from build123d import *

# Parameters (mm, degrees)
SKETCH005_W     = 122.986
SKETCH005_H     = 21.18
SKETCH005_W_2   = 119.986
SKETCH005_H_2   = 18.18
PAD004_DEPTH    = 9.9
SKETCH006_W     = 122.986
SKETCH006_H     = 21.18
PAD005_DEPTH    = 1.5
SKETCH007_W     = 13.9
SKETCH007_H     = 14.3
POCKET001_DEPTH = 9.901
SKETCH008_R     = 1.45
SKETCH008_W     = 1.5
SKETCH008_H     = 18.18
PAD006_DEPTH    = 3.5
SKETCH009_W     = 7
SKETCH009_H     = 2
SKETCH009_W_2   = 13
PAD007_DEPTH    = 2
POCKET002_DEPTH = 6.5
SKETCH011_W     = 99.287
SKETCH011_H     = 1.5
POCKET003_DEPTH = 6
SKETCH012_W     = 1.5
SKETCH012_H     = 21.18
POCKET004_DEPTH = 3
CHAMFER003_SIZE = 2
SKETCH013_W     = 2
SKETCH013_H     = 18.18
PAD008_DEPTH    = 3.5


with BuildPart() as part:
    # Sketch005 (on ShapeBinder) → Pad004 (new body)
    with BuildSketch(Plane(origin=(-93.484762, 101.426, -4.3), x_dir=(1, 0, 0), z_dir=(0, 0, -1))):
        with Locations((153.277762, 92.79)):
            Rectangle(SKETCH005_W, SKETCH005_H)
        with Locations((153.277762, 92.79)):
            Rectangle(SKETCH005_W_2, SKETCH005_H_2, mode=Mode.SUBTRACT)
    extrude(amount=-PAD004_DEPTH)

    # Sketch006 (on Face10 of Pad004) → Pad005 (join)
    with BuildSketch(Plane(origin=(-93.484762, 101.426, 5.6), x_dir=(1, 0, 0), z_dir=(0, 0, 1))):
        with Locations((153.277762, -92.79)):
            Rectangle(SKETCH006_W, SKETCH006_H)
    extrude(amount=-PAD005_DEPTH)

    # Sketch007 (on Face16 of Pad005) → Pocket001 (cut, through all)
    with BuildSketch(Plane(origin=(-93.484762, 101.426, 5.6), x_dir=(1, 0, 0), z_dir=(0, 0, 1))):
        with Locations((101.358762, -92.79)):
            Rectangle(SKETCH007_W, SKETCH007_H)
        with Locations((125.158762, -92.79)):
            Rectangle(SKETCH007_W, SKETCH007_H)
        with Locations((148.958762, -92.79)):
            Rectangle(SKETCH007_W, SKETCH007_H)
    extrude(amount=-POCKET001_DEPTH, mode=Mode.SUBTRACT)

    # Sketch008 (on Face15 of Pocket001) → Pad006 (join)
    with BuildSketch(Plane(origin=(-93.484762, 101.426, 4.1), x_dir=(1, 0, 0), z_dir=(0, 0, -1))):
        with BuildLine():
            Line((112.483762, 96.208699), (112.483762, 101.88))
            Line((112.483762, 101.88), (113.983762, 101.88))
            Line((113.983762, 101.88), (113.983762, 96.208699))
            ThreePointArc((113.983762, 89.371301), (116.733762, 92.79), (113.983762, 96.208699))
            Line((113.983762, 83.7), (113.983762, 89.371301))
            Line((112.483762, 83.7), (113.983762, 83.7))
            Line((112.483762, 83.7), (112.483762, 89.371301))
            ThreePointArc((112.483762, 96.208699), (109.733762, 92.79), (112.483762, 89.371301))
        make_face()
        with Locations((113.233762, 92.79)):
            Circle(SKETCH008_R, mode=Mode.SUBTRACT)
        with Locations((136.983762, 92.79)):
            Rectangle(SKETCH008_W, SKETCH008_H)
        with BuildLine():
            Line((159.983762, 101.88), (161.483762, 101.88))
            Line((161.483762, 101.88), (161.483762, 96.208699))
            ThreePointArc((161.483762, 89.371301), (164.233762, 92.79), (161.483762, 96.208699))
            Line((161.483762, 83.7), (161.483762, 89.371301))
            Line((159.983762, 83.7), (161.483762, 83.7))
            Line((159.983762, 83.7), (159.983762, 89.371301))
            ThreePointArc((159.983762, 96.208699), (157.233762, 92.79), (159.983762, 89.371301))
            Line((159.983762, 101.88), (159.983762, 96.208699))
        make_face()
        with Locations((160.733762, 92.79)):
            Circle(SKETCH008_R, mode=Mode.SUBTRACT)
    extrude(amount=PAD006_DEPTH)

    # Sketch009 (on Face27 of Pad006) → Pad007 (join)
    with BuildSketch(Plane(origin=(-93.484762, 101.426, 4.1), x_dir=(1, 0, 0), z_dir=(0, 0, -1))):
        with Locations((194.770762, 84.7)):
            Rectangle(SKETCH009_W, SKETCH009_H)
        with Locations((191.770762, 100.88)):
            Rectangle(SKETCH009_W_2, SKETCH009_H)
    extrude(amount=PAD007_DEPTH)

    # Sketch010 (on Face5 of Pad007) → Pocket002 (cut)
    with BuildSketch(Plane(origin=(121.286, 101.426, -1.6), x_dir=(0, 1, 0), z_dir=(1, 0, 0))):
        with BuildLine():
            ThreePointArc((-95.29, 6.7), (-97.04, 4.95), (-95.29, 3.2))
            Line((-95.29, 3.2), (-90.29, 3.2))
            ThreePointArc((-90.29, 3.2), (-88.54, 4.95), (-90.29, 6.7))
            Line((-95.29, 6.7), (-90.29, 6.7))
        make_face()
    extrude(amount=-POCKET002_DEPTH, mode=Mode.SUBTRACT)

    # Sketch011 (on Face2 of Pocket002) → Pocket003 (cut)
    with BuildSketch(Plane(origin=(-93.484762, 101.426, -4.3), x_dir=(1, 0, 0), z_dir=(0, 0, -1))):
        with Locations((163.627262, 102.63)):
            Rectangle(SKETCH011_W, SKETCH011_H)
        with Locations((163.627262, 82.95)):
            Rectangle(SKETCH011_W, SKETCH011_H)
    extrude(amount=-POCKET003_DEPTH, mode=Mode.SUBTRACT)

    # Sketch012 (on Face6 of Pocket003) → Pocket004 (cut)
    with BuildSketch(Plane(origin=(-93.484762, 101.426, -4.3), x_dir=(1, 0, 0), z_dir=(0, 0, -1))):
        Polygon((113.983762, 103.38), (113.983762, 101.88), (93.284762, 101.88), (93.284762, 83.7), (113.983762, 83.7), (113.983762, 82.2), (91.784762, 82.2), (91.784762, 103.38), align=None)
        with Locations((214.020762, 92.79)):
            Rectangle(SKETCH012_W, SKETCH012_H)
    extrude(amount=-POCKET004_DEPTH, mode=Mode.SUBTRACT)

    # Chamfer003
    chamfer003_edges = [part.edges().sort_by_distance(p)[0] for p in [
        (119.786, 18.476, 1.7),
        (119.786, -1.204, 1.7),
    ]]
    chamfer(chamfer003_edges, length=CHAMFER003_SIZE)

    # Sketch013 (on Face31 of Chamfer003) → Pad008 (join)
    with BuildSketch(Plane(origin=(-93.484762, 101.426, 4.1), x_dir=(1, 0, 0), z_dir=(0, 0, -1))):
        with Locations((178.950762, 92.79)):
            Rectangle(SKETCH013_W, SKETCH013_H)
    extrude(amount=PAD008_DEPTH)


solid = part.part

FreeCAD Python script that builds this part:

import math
import FreeCAD as App
import Part
import Sketcher


def edges_at(feature, points):
    """Names of the edges that pass closest to the given points."""
    edges = feature.Shape.Edges
    near = lambda p: min(range(len(edges)), key=lambda i: edges[i].distToShape(Part.Vertex(*p))[0])
    return sorted({f"Edge{near(p) + 1}" for p in points})

doc = App.newDocument("Part")
body = doc.addObject("PartDesign::Body", "Body")

# Sketch on XY plane
sketch1 = body.newObject("Sketcher::SketchObject", "Sketch")
sketch1.AttachmentSupport = (doc.getObject("XY_Plane"), [""])
sketch1.MapMode = "FlatFace"
sketch1.AttachmentOffset = App.Placement(App.Vector(0, 0, -4.3), App.Rotation())
sketch1.addGeometry(Part.LineSegment(App.Vector(-1.7, -1.954, 0), App.Vector(-1.7, 19.226, 0)), False)
sketch1.addGeometry(Part.LineSegment(App.Vector(-1.7, 19.226, 0), App.Vector(121.286, 19.226, 0)), False)
sketch1.addGeometry(Part.LineSegment(App.Vector(121.286, 19.226, 0), App.Vector(121.286, -1.954, 0)), False)
sketch1.addGeometry(Part.LineSegment(App.Vector(121.286, -1.954, 0), App.Vector(-1.7, -1.954, 0)), False)
sketch1.addGeometry(Part.LineSegment(App.Vector(119.786, 17.726, 0), App.Vector(-0.2, 17.726, 0)), False)
sketch1.addGeometry(Part.LineSegment(App.Vector(-0.2, 17.726, 0), App.Vector(-0.2, -0.454, 0)), False)
sketch1.addGeometry(Part.LineSegment(App.Vector(-0.2, -0.454, 0), App.Vector(119.786, -0.454, 0)), False)
sketch1.addGeometry(Part.LineSegment(App.Vector(119.786, -0.454, 0), App.Vector(119.786, 17.726, 0)), False)
sketch1.addConstraint(Sketcher.Constraint("Coincident", 0, 2, 1, 1))
sketch1.addConstraint(Sketcher.Constraint("Coincident", 1, 2, 2, 1))
sketch1.addConstraint(Sketcher.Constraint("Coincident", 2, 2, 3, 1))
sketch1.addConstraint(Sketcher.Constraint("Coincident", 3, 2, 0, 1))
sketch1.addConstraint(Sketcher.Constraint("Coincident", 4, 2, 5, 1))
sketch1.addConstraint(Sketcher.Constraint("Coincident", 5, 2, 6, 1))
sketch1.addConstraint(Sketcher.Constraint("Coincident", 6, 2, 7, 1))
sketch1.addConstraint(Sketcher.Constraint("Coincident", 7, 2, 4, 1))
sketch1.addConstraint(Sketcher.Constraint("Vertical", 0))
sketch1.addConstraint(Sketcher.Constraint("Horizontal", 1))
sketch1.addConstraint(Sketcher.Constraint("Vertical", 2))
sketch1.addConstraint(Sketcher.Constraint("Horizontal", 3))
sketch1.addConstraint(Sketcher.Constraint("Horizontal", 4))
sketch1.addConstraint(Sketcher.Constraint("Vertical", 5))
sketch1.addConstraint(Sketcher.Constraint("Horizontal", 6))
sketch1.addConstraint(Sketcher.Constraint("Vertical", 7))
sketch1.addConstraint(Sketcher.Constraint("DistanceY", 0, 1, 0, 2, 21.18))
sketch1.addConstraint(Sketcher.Constraint("DistanceY", 5, 2, 5, 1, 18.18))
sketch1.addConstraint(Sketcher.Constraint("DistanceX", 0, 2, -1, 1, 1.7))
sketch1.addConstraint(Sketcher.Constraint("DistanceX", 4, 2, -1, 1, 0.2))
sketch1.addConstraint(Sketcher.Constraint("DistanceY", 4, 2, 0, 2, 1.5))
sketch1.addConstraint(Sketcher.Constraint("DistanceX", 6, 2, 2, 2, 1.5))
sketch1.addConstraint(Sketcher.Constraint("DistanceX", 1, 1, 1, 2, 122.986))
sketch1.addConstraint(Sketcher.Constraint("DistanceY", -1, 1, 0, 2, 19.226))
pad1 = body.newObject("PartDesign::Pad", "Pad")
pad1.Profile = sketch1
pad1.Length = 9.9

# Sketch on XY plane
sketch2 = body.newObject("Sketcher::SketchObject", "Sketch001")
sketch2.AttachmentSupport = (doc.getObject("XY_Plane"), [""])
sketch2.MapMode = "FlatFace"
sketch2.AttachmentOffset = App.Placement(App.Vector(0, 0, 5.6), App.Rotation())
sketch2.addGeometry(Part.LineSegment(App.Vector(-1.7, 19.226, 0), App.Vector(-1.7, -1.954, 0)), False)
sketch2.addGeometry(Part.LineSegment(App.Vector(-1.7, -1.954, 0), App.Vector(121.286, -1.954, 0)), False)
sketch2.addGeometry(Part.LineSegment(App.Vector(121.286, -1.954, 0), App.Vector(121.286, 19.226, 0)), False)
sketch2.addGeometry(Part.LineSegment(App.Vector(121.286, 19.226, 0), App.Vector(-1.7, 19.226, 0)), False)
sketch2.addConstraint(Sketcher.Constraint("Coincident", 0, 2, 1, 1))
sketch2.addConstraint(Sketcher.Constraint("Coincident", 1, 2, 2, 1))
sketch2.addConstraint(Sketcher.Constraint("Coincident", 2, 2, 3, 1))
sketch2.addConstraint(Sketcher.Constraint("Coincident", 3, 2, 0, 1))
sketch2.addConstraint(Sketcher.Constraint("Vertical", 0))
sketch2.addConstraint(Sketcher.Constraint("Horizontal", 1))
sketch2.addConstraint(Sketcher.Constraint("Vertical", 2))
sketch2.addConstraint(Sketcher.Constraint("Horizontal", 3))
sketch2.addConstraint(Sketcher.Constraint("DistanceY", 0, 2, 0, 1, 21.18))
sketch2.addConstraint(Sketcher.Constraint("DistanceX", 0, 2, -1, 1, 1.7))
sketch2.addConstraint(Sketcher.Constraint("DistanceX", 1, 1, 1, 2, 122.986))
sketch2.addConstraint(Sketcher.Constraint("DistanceY", 0, 2, -1, 1, 1.954))
pad2 = body.newObject("PartDesign::Pad", "Pad001")
pad2.Profile = sketch2
pad2.Length = 1.5
pad2.Reversed = True

# Sketch on XY plane
sketch3 = body.newObject("Sketcher::SketchObject", "Sketch002")
sketch3.AttachmentSupport = (doc.getObject("XY_Plane"), [""])
sketch3.MapMode = "FlatFace"
sketch3.AttachmentOffset = App.Placement(App.Vector(0, 0, 5.6), App.Rotation())
sketch3.addGeometry(Part.LineSegment(App.Vector(0.924, 15.786, 0), App.Vector(0.924, 1.486, 0)), False)
sketch3.addGeometry(Part.LineSegment(App.Vector(0.924, 1.486, 0), App.Vector(14.824, 1.486, 0)), False)
sketch3.addGeometry(Part.LineSegment(App.Vector(14.824, 1.486, 0), App.Vector(14.824, 15.786, 0)), False)
sketch3.addGeometry(Part.LineSegment(App.Vector(14.824, 15.786, 0), App.Vector(0.924, 15.786, 0)), False)
sketch3.addGeometry(Part.LineSegment(App.Vector(24.724, 15.786, 0), App.Vector(24.724, 1.486, 0)), False)
sketch3.addGeometry(Part.LineSegment(App.Vector(24.724, 1.486, 0), App.Vector(38.624, 1.486, 0)), False)
sketch3.addGeometry(Part.LineSegment(App.Vector(38.624, 1.486, 0), App.Vector(38.624, 15.786, 0)), False)
sketch3.addGeometry(Part.LineSegment(App.Vector(38.624, 15.786, 0), App.Vector(24.724, 15.786, 0)), False)
sketch3.addGeometry(Part.LineSegment(App.Vector(48.524, 15.786, 0), App.Vector(48.524, 1.486, 0)), False)
sketch3.addGeometry(Part.LineSegment(App.Vector(48.524, 1.486, 0), App.Vector(62.424, 1.486, 0)), False)
sketch3.addGeometry(Part.LineSegment(App.Vector(62.424, 1.486, 0), App.Vector(62.424, 15.786, 0)), False)
sketch3.addGeometry(Part.LineSegment(App.Vector(62.424, 15.786, 0), App.Vector(48.524, 15.786, 0)), False)
sketch3.addConstraint(Sketcher.Constraint("Coincident", 0, 2, 1, 1))
sketch3.addConstraint(Sketcher.Constraint("Coincident", 1, 2, 2, 1))
sketch3.addConstraint(Sketcher.Constraint("Coincident", 2, 2, 3, 1))
sketch3.addConstraint(Sketcher.Constraint("Coincident", 3, 2, 0, 1))
sketch3.addConstraint(Sketcher.Constraint("Coincident", 4, 2, 5, 1))
sketch3.addConstraint(Sketcher.Constraint("Coincident", 5, 2, 6, 1))
sketch3.addConstraint(Sketcher.Constraint("Coincident", 6, 2, 7, 1))
sketch3.addConstraint(Sketcher.Constraint("Coincident", 7, 2, 4, 1))
sketch3.addConstraint(Sketcher.Constraint("Coincident", 8, 2, 9, 1))
sketch3.addConstraint(Sketcher.Constraint("Coincident", 9, 2, 10, 1))
sketch3.addConstraint(Sketcher.Constraint("Coincident", 10, 2, 11, 1))
sketch3.addConstraint(Sketcher.Constraint("Coincident", 11, 2, 8, 1))
sketch3.addConstraint(Sketcher.Constraint("Vertical", 0))
sketch3.addConstraint(Sketcher.Constraint("Horizontal", 1))
sketch3.addConstraint(Sketcher.Constraint("Vertical", 2))
sketch3.addConstraint(Sketcher.Constraint("Horizontal", 3))
sketch3.addConstraint(Sketcher.Constraint("Vertical", 4))
sketch3.addConstraint(Sketcher.Constraint("Horizontal", 5))
sketch3.addConstraint(Sketcher.Constraint("Vertical", 6))
sketch3.addConstraint(Sketcher.Constraint("Horizontal", 7))
sketch3.addConstraint(Sketcher.Constraint("Vertical", 8))
sketch3.addConstraint(Sketcher.Constraint("Horizontal", 9))
sketch3.addConstraint(Sketcher.Constraint("Vertical", 10))
sketch3.addConstraint(Sketcher.Constraint("Horizontal", 11))
sketch3.addConstraint(Sketcher.Constraint("Horizontal", 1, 2, 4, 2))
sketch3.addConstraint(Sketcher.Constraint("Horizontal", 3, 2, 6, 2))
sketch3.addConstraint(Sketcher.Constraint("Horizontal", 5, 2, 8, 2))
sketch3.addConstraint(Sketcher.Constraint("Horizontal", 7, 2, 10, 2))
sketch3.addConstraint(Sketcher.Constraint("Equal", 3, 5))
sketch3.addConstraint(Sketcher.Constraint("Equal", 7, 9))
sketch3.addConstraint(Sketcher.Constraint("DistanceX", 1, 1, 1, 2, 13.9))
sketch3.addConstraint(Sketcher.Constraint("DistanceY", 0, 2, 0, 1, 14.3))
sketch3.addConstraint(Sketcher.Constraint("DistanceX", 1, 2, 4, 2, 9.9))
sketch3.addConstraint(Sketcher.Constraint("DistanceX", 5, 2, 8, 2, 9.9))
sketch3.addConstraint(Sketcher.Constraint("DistanceX", -1, 1, 0, 2, 0.924))
sketch3.addConstraint(Sketcher.Constraint("DistanceY", -1, 1, 0, 2, 1.486))
pocket1 = body.newObject("PartDesign::Pocket", "Pocket")
pocket1.Profile = sketch3
pocket1.Type = "ThroughAll"

# Sketch on XY plane
sketch4 = body.newObject("Sketcher::SketchObject", "Sketch003")
sketch4.AttachmentSupport = (doc.getObject("XY_Plane"), [""])
sketch4.MapMode = "FlatFace"
sketch4.AttachmentOffset = App.Placement(App.Vector(0, 0, 4.1), App.Rotation())
sketch4.addGeometry(Part.LineSegment(App.Vector(18.999, -0.454, 0), App.Vector(18.999, 5.217301, 0)), False)
sketch4.addGeometry(Part.ArcOfCircle(Part.Circle(App.Vector(19.749001, 8.636, 0), App.Vector(0, 0, 1), 3.500001), math.radians(102.373632), math.radians(257.626368)), False)
sketch4.addGeometry(Part.LineSegment(App.Vector(18.999, 12.054699, 0), App.Vector(18.999, 17.726, 0)), False)
sketch4.addGeometry(Part.LineSegment(App.Vector(18.999, 17.726, 0), App.Vector(20.499, 17.726, 0)), False)
sketch4.addGeometry(Part.LineSegment(App.Vector(20.499, 17.726, 0), App.Vector(20.499, 12.054699, 0)), False)
sketch4.addGeometry(Part.ArcOfCircle(Part.Circle(App.Vector(19.748999, 8.636, 0), App.Vector(0, 0, 1), 3.500001), math.radians(-77.626368), math.radians(77.626368)), False)
sketch4.addGeometry(Part.LineSegment(App.Vector(20.499, 5.217301, 0), App.Vector(20.499, -0.454, 0)), False)
sketch4.addGeometry(Part.LineSegment(App.Vector(20.499, -0.454, 0), App.Vector(18.999, -0.454, 0)), False)
sketch4.addGeometry(Part.Circle(App.Vector(19.749, 8.636, 0), App.Vector(0, 0, 1), 1.45), False)
sketch4.addGeometry(Part.LineSegment(App.Vector(42.749, -0.454, 0), App.Vector(42.749, 17.726, 0)), False)
sketch4.addGeometry(Part.LineSegment(App.Vector(42.749, 17.726, 0), App.Vector(44.249, 17.726, 0)), False)
sketch4.addGeometry(Part.LineSegment(App.Vector(44.249, 17.726, 0), App.Vector(44.249, -0.454, 0)), False)
sketch4.addGeometry(Part.LineSegment(App.Vector(44.249, -0.454, 0), App.Vector(42.749, -0.454, 0)), False)
sketch4.addGeometry(Part.LineSegment(App.Vector(67.999, -0.454, 0), App.Vector(66.499, -0.454, 0)), False)
sketch4.addGeometry(Part.LineSegment(App.Vector(66.499, -0.454, 0), App.Vector(66.499, 5.217301, 0)), False)
sketch4.addGeometry(Part.ArcOfCircle(Part.Circle(App.Vector(67.249001, 8.636, 0), App.Vector(0, 0, 1), 3.500001), math.radians(102.373632), math.radians(257.626368)), False)
sketch4.addGeometry(Part.LineSegment(App.Vector(66.499, 12.054699, 0), App.Vector(66.499, 17.726, 0)), False)
sketch4.addGeometry(Part.LineSegment(App.Vector(66.499, 17.726, 0), App.Vector(67.999, 17.726, 0)), False)
sketch4.addGeometry(Part.LineSegment(App.Vector(67.999, 17.726, 0), App.Vector(67.999, 12.054699, 0)), False)
sketch4.addGeometry(Part.ArcOfCircle(Part.Circle(App.Vector(67.248999, 8.636, 0), App.Vector(0, 0, 1), 3.500001), math.radians(-77.626368), math.radians(77.626368)), False)
sketch4.addGeometry(Part.LineSegment(App.Vector(67.999, 5.217301, 0), App.Vector(67.999, -0.454, 0)), False)
sketch4.addGeometry(Part.Circle(App.Vector(67.249, 8.636, 0), App.Vector(0, 0, 1), 1.45), False)
sketch4.addConstraint(Sketcher.Constraint("Coincident", 0, 2, 1, 2))
sketch4.addConstraint(Sketcher.Constraint("Coincident", 1, 1, 2, 1))
sketch4.addConstraint(Sketcher.Constraint("Coincident", 2, 2, 3, 1))
sketch4.addConstraint(Sketcher.Constraint("Coincident", 3, 2, 4, 1))
sketch4.addConstraint(Sketcher.Constraint("Coincident", 4, 2, 5, 2))
sketch4.addConstraint(Sketcher.Constraint("Coincident", 5, 1, 6, 1))
sketch4.addConstraint(Sketcher.Constraint("Coincident", 6, 2, 7, 1))
sketch4.addConstraint(Sketcher.Constraint("Coincident", 7, 2, 0, 1))
sketch4.addConstraint(Sketcher.Constraint("Coincident", 9, 2, 10, 1))
sketch4.addConstraint(Sketcher.Constraint("Coincident", 10, 2, 11, 1))
sketch4.addConstraint(Sketcher.Constraint("Coincident", 11, 2, 12, 1))
sketch4.addConstraint(Sketcher.Constraint("Coincident", 12, 2, 9, 1))
sketch4.addConstraint(Sketcher.Constraint("Coincident", 13, 2, 14, 1))
sketch4.addConstraint(Sketcher.Constraint("Coincident", 14, 2, 15, 2))
sketch4.addConstraint(Sketcher.Constraint("Coincident", 15, 1, 16, 1))
sketch4.addConstraint(Sketcher.Constraint("Coincident", 16, 2, 17, 1))
sketch4.addConstraint(Sketcher.Constraint("Coincident", 17, 2, 18, 1))
sketch4.addConstraint(Sketcher.Constraint("Coincident", 18, 2, 19, 2))
sketch4.addConstraint(Sketcher.Constraint("Coincident", 19, 1, 20, 1))
sketch4.addConstraint(Sketcher.Constraint("Coincident", 20, 2, 13, 1))
sketch4.addConstraint(Sketcher.Constraint("Vertical", 0))
sketch4.addConstraint(Sketcher.Constraint("Vertical", 2))
sketch4.addConstraint(Sketcher.Constraint("Horizontal", 3))
sketch4.addConstraint(Sketcher.Constraint("Vertical", 4))
sketch4.addConstraint(Sketcher.Constraint("Vertical", 6))
sketch4.addConstraint(Sketcher.Constraint("Horizontal", 7))
sketch4.addConstraint(Sketcher.Constraint("Vertical", 9))
sketch4.addConstraint(Sketcher.Constraint("Horizontal", 10))
sketch4.addConstraint(Sketcher.Constraint("Vertical", 11))
sketch4.addConstraint(Sketcher.Constraint("Horizontal", 12))
sketch4.addConstraint(Sketcher.Constraint("Horizontal", 13))
sketch4.addConstraint(Sketcher.Constraint("Vertical", 14))
sketch4.addConstraint(Sketcher.Constraint("Vertical", 16))
sketch4.addConstraint(Sketcher.Constraint("Horizontal", 17))
sketch4.addConstraint(Sketcher.Constraint("Vertical", 18))
sketch4.addConstraint(Sketcher.Constraint("Vertical", 20))
sketch4.addConstraint(Sketcher.Constraint("Coincident", 5, 3, 1, 3))
sketch4.addConstraint(Sketcher.Constraint("Coincident", 8, 3, 1, 3))
sketch4.addConstraint(Sketcher.Constraint("Coincident", 19, 3, 15, 3))
sketch4.addConstraint(Sketcher.Constraint("Coincident", 21, 3, 15, 3))
sketch4.addConstraint(Sketcher.Constraint("Equal", 1, 5))
sketch4.addConstraint(Sketcher.Constraint("Equal", 5, 15))
sketch4.addConstraint(Sketcher.Constraint("Equal", 15, 19))
sketch4.addConstraint(Sketcher.Constraint("Equal", 8, 21))
sketch4.addConstraint(Sketcher.Constraint("Horizontal", 8, 3, 15, 3))
sketch4.addConstraint(Sketcher.Constraint("Horizontal", 1, 1, 4, 2))
sketch4.addConstraint(Sketcher.Constraint("Horizontal", 0, 2, 5, 1))
sketch4.addConstraint(Sketcher.Constraint("Horizontal", 3, 2, 9, 2))
sketch4.addConstraint(Sketcher.Constraint("Horizontal", 7, 2, 11, 2))
sketch4.addConstraint(Sketcher.Constraint("Horizontal", 12, 2, 13, 2))
sketch4.addConstraint(Sketcher.Constraint("Horizontal", 5, 1, 14, 2))
sketch4.addConstraint(Sketcher.Constraint("Horizontal", 4, 2, 15, 1))
sketch4.addConstraint(Sketcher.Constraint("Horizontal", 10, 2, 16, 2))
sketch4.addConstraint(Sketcher.Constraint("Horizontal", 15, 1, 18, 2))
sketch4.addConstraint(Sketcher.Constraint("Horizontal", 14, 2, 19, 1))
sketch4.addConstraint(Sketcher.Constraint("Vertical", 0, 2, 1, 1))
sketch4.addConstraint(Sketcher.Constraint("Equal", 7, 10))
sketch4.addConstraint(Sketcher.Constraint("Equal", 0, 2))
sketch4.addConstraint(Sketcher.Constraint("Diameter", 8, 2.9))
sketch4.addConstraint(Sketcher.Constraint("Radius", 1, 3.500001))
sketch4.addConstraint(Sketcher.Constraint("DistanceX", 3, 1, 3, 2, 1.5))
sketch4.addConstraint(Sketcher.Constraint("DistanceX", 1, 3, 9, 2, 22.999999))
sketch4.addConstraint(Sketcher.Constraint("DistanceX", 10, 2, 19, 3, 22.999999))
sketch4.addConstraint(Sketcher.Constraint("DistanceY", 9, 1, 9, 2, 18.18))
sketch4.addConstraint(Sketcher.Constraint("DistanceX", -1, 1, 1, 3, 19.749001))
sketch4.addConstraint(Sketcher.Constraint("DistanceY", -1, 1, 1, 3, 8.636))
pad3 = body.newObject("PartDesign::Pad", "Pad002")
pad3.Profile = sketch4
pad3.Length = 3.5
pad3.Reversed = True

# Sketch on XY plane
sketch5 = body.newObject("Sketcher::SketchObject", "Sketch004")
sketch5.AttachmentSupport = (doc.getObject("XY_Plane"), [""])
sketch5.MapMode = "FlatFace"
sketch5.AttachmentOffset = App.Placement(App.Vector(0, 0, 4.1), App.Rotation())
sketch5.addGeometry(Part.LineSegment(App.Vector(97.786, 15.726, 0), App.Vector(97.786, 17.726, 0)), False)
sketch5.addGeometry(Part.LineSegment(App.Vector(97.786, 17.726, 0), App.Vector(104.786, 17.726, 0)), False)
sketch5.addGeometry(Part.LineSegment(App.Vector(104.786, 17.726, 0), App.Vector(104.786, 15.726, 0)), False)
sketch5.addGeometry(Part.LineSegment(App.Vector(104.786, 15.726, 0), App.Vector(97.786, 15.726, 0)), False)
sketch5.addGeometry(Part.LineSegment(App.Vector(91.786, -0.454, 0), App.Vector(91.786, 1.546, 0)), False)
sketch5.addGeometry(Part.LineSegment(App.Vector(91.786, 1.546, 0), App.Vector(104.786, 1.546, 0)), False)
sketch5.addGeometry(Part.LineSegment(App.Vector(104.786, 1.546, 0), App.Vector(104.786, -0.454, 0)), False)
sketch5.addGeometry(Part.LineSegment(App.Vector(104.786, -0.454, 0), App.Vector(91.786, -0.454, 0)), False)
sketch5.addConstraint(Sketcher.Constraint("Coincident", 0, 2, 1, 1))
sketch5.addConstraint(Sketcher.Constraint("Coincident", 1, 2, 2, 1))
sketch5.addConstraint(Sketcher.Constraint("Coincident", 2, 2, 3, 1))
sketch5.addConstraint(Sketcher.Constraint("Coincident", 3, 2, 0, 1))
sketch5.addConstraint(Sketcher.Constraint("Coincident", 4, 2, 5, 1))
sketch5.addConstraint(Sketcher.Constraint("Coincident", 5, 2, 6, 1))
sketch5.addConstraint(Sketcher.Constraint("Coincident", 6, 2, 7, 1))
sketch5.addConstraint(Sketcher.Constraint("Coincident", 7, 2, 4, 1))
sketch5.addConstraint(Sketcher.Constraint("Vertical", 0))
sketch5.addConstraint(Sketcher.Constraint("Horizontal", 1))
sketch5.addConstraint(Sketcher.Constraint("Vertical", 2))
sketch5.addConstraint(Sketcher.Constraint("Horizontal", 3))
sketch5.addConstraint(Sketcher.Constraint("Vertical", 4))
sketch5.addConstraint(Sketcher.Constraint("Horizontal", 5))
sketch5.addConstraint(Sketcher.Constraint("Vertical", 6))
sketch5.addConstraint(Sketcher.Constraint("Horizontal", 7))
sketch5.addConstraint(Sketcher.Constraint("Vertical", 2, 2, 5, 2))
sketch5.addConstraint(Sketcher.Constraint("Equal", 2, 4))
sketch5.addConstraint(Sketcher.Constraint("DistanceX", 1, 1, 1, 2, 7.0))
sketch5.addConstraint(Sketcher.Constraint("DistanceX", 5, 1, 5, 2, 13.0))
sketch5.addConstraint(Sketcher.Constraint("DistanceY", 0, 1, 0, 2, 2.0))
sketch5.addConstraint(Sketcher.Constraint("DistanceY", 4, 2, 3, 2, 14.18))
sketch5.addConstraint(Sketcher.Constraint("DistanceX", -1, 1, 0, 2, 97.786))
sketch5.addConstraint(Sketcher.Constraint("DistanceY", -1, 1, 0, 2, 17.726))
pad4 = body.newObject("PartDesign::Pad", "Pad003")
pad4.Profile = sketch5
pad4.Length = 2
pad4.Reversed = True

# Sketch on YZ plane
sketch6 = body.newObject("Sketcher::SketchObject", "Sketch005")
sketch6.AttachmentSupport = (doc.getObject("YZ_Plane"), [""])
sketch6.MapMode = "FlatFace"
sketch6.AttachmentOffset = App.Placement(App.Vector(0, 0, 121.286), App.Rotation())
sketch6.addGeometry(Part.ArcOfCircle(Part.Circle(App.Vector(6.136, 3.35, 0), App.Vector(0, 0, 1), 1.75), math.radians(90), math.radians(270)), False)
sketch6.addGeometry(Part.LineSegment(App.Vector(6.136, 1.6, 0), App.Vector(11.136, 1.6, 0)), False)
sketch6.addGeometry(Part.ArcOfCircle(Part.Circle(App.Vector(11.136, 3.35, 0), App.Vector(0, 0, 1), 1.75), math.radians(-90), math.radians(90)), False)
sketch6.addGeometry(Part.LineSegment(App.Vector(11.136, 5.1, 0), App.Vector(6.136, 5.1, 0)), False)
sketch6.addConstraint(Sketcher.Constraint("Tangent", 0, 2, 1, 1))
sketch6.addConstraint(Sketcher.Constraint("Tangent", 1, 2, 2, 1))
sketch6.addConstraint(Sketcher.Constraint("Tangent", 2, 2, 3, 1))
sketch6.addConstraint(Sketcher.Constraint("Tangent", 3, 2, 0, 1))
sketch6.addConstraint(Sketcher.Constraint("Horizontal", 1))
sketch6.addConstraint(Sketcher.Constraint("Horizontal", 3))
sketch6.addConstraint(Sketcher.Constraint("DistanceX", 1, 1, 1, 2, 5.0))
sketch6.addConstraint(Sketcher.Constraint("Radius", 0, 1.75))
sketch6.addConstraint(Sketcher.Constraint("DistanceY", -1, 1, 0, 2, 1.6))
sketch6.addConstraint(Sketcher.Constraint("DistanceX", -1, 1, 0, 3, 6.136))
pocket2 = body.newObject("PartDesign::Pocket", "Pocket001")
pocket2.Profile = sketch6
pocket2.Length = 6.5

# Sketch on XY plane
sketch7 = body.newObject("Sketcher::SketchObject", "Sketch006")
sketch7.AttachmentSupport = (doc.getObject("XY_Plane"), [""])
sketch7.MapMode = "FlatFace"
sketch7.AttachmentOffset = App.Placement(App.Vector(0, 0, -4.3), App.Rotation())
sketch7.addGeometry(Part.LineSegment(App.Vector(20.499, -1.954, 0), App.Vector(20.499, -0.454, 0)), False)
sketch7.addGeometry(Part.LineSegment(App.Vector(20.499, -0.454, 0), App.Vector(119.786, -0.454, 0)), False)
sketch7.addGeometry(Part.LineSegment(App.Vector(119.786, -0.454, 0), App.Vector(119.786, -1.954, 0)), False)
sketch7.addGeometry(Part.LineSegment(App.Vector(119.786, -1.954, 0), App.Vector(20.499, -1.954, 0)), False)
sketch7.addGeometry(Part.LineSegment(App.Vector(20.499, 17.726, 0), App.Vector(20.499, 19.226, 0)), False)
sketch7.addGeometry(Part.LineSegment(App.Vector(20.499, 19.226, 0), App.Vector(119.786, 19.226, 0)), False)
sketch7.addGeometry(Part.LineSegment(App.Vector(119.786, 19.226, 0), App.Vector(119.786, 17.726, 0)), False)
sketch7.addGeometry(Part.LineSegment(App.Vector(119.786, 17.726, 0), App.Vector(20.499, 17.726, 0)), False)
sketch7.addConstraint(Sketcher.Constraint("Coincident", 0, 2, 1, 1))
sketch7.addConstraint(Sketcher.Constraint("Coincident", 1, 2, 2, 1))
sketch7.addConstraint(Sketcher.Constraint("Coincident", 2, 2, 3, 1))
sketch7.addConstraint(Sketcher.Constraint("Coincident", 3, 2, 0, 1))
sketch7.addConstraint(Sketcher.Constraint("Coincident", 4, 2, 5, 1))
sketch7.addConstraint(Sketcher.Constraint("Coincident", 5, 2, 6, 1))
sketch7.addConstraint(Sketcher.Constraint("Coincident", 6, 2, 7, 1))
sketch7.addConstraint(Sketcher.Constraint("Coincident", 7, 2, 4, 1))
sketch7.addConstraint(Sketcher.Constraint("Vertical", 0))
sketch7.addConstraint(Sketcher.Constraint("Horizontal", 1))
sketch7.addConstraint(Sketcher.Constraint("Vertical", 2))
sketch7.addConstraint(Sketcher.Constraint("Horizontal", 3))
sketch7.addConstraint(Sketcher.Constraint("Vertical", 4))
sketch7.addConstraint(Sketcher.Constraint("Horizontal", 5))
sketch7.addConstraint(Sketcher.Constraint("Vertical", 6))
sketch7.addConstraint(Sketcher.Constraint("Horizontal", 7))
sketch7.addConstraint(Sketcher.Constraint("Vertical", 3, 2, 4, 2))
sketch7.addConstraint(Sketcher.Constraint("Vertical", 2, 2, 5, 2))
sketch7.addConstraint(Sketcher.Constraint("Equal", 2, 4))
sketch7.addConstraint(Sketcher.Constraint("DistanceY", 0, 1, 0, 2, 1.5))
sketch7.addConstraint(Sketcher.Constraint("DistanceX", 1, 1, 1, 2, 99.287))
sketch7.addConstraint(Sketcher.Constraint("DistanceY", 0, 2, 4, 2, 19.68))
sketch7.addConstraint(Sketcher.Constraint("DistanceX", -1, 1, 0, 2, 20.499))
sketch7.addConstraint(Sketcher.Constraint("DistanceY", 0, 2, -1, 1, 0.454))
pocket3 = body.newObject("PartDesign::Pocket", "Pocket002")
pocket3.Profile = sketch7
pocket3.Length = 6
pocket3.Reversed = True

# Sketch on XY plane
sketch8 = body.newObject("Sketcher::SketchObject", "Sketch007")
sketch8.AttachmentSupport = (doc.getObject("XY_Plane"), [""])
sketch8.MapMode = "FlatFace"
sketch8.AttachmentOffset = App.Placement(App.Vector(0, 0, -4.3), App.Rotation())
sketch8.addGeometry(Part.LineSegment(App.Vector(20.499, -0.454, 0), App.Vector(20.499, -1.954, 0)), False)
sketch8.addGeometry(Part.LineSegment(App.Vector(20.499, -1.954, 0), App.Vector(-1.7, -1.954, 0)), False)
sketch8.addGeometry(Part.LineSegment(App.Vector(-1.7, -1.954, 0), App.Vector(-1.7, 19.226, 0)), False)
sketch8.addGeometry(Part.LineSegment(App.Vector(-1.7, 19.226, 0), App.Vector(20.499, 19.226, 0)), False)
sketch8.addGeometry(Part.LineSegment(App.Vector(20.499, 19.226, 0), App.Vector(20.499, 17.726, 0)), False)
sketch8.addGeometry(Part.LineSegment(App.Vector(20.499, 17.726, 0), App.Vector(-0.2, 17.726, 0)), False)
sketch8.addGeometry(Part.LineSegment(App.Vector(-0.2, 17.726, 0), App.Vector(-0.2, -0.454, 0)), False)
sketch8.addGeometry(Part.LineSegment(App.Vector(-0.2, -0.454, 0), App.Vector(20.499, -0.454, 0)), False)
sketch8.addGeometry(Part.LineSegment(App.Vector(119.786, -1.954, 0), App.Vector(119.786, 19.226, 0)), False)
sketch8.addGeometry(Part.LineSegment(App.Vector(119.786, 19.226, 0), App.Vector(121.286, 19.226, 0)), False)
sketch8.addGeometry(Part.LineSegment(App.Vector(121.286, 19.226, 0), App.Vector(121.286, -1.954, 0)), False)
sketch8.addGeometry(Part.LineSegment(App.Vector(121.286, -1.954, 0), App.Vector(119.786, -1.954, 0)), False)
sketch8.addConstraint(Sketcher.Constraint("Coincident", 0, 2, 1, 1))
sketch8.addConstraint(Sketcher.Constraint("Coincident", 1, 2, 2, 1))
sketch8.addConstraint(Sketcher.Constraint("Coincident", 2, 2, 3, 1))
sketch8.addConstraint(Sketcher.Constraint("Coincident", 3, 2, 4, 1))
sketch8.addConstraint(Sketcher.Constraint("Coincident", 4, 2, 5, 1))
sketch8.addConstraint(Sketcher.Constraint("Coincident", 5, 2, 6, 1))
sketch8.addConstraint(Sketcher.Constraint("Coincident", 6, 2, 7, 1))
sketch8.addConstraint(Sketcher.Constraint("Coincident", 7, 2, 0, 1))
sketch8.addConstraint(Sketcher.Constraint("Coincident", 8, 2, 9, 1))
sketch8.addConstraint(Sketcher.Constraint("Coincident", 9, 2, 10, 1))
sketch8.addConstraint(Sketcher.Constraint("Coincident", 10, 2, 11, 1))
sketch8.addConstraint(Sketcher.Constraint("Coincident", 11, 2, 8, 1))
sketch8.addConstraint(Sketcher.Constraint("Vertical", 0))
sketch8.addConstraint(Sketcher.Constraint("Horizontal", 1))
sketch8.addConstraint(Sketcher.Constraint("Vertical", 2))
sketch8.addConstraint(Sketcher.Constraint("Horizontal", 3))
sketch8.addConstraint(Sketcher.Constraint("Vertical", 4))
sketch8.addConstraint(Sketcher.Constraint("Horizontal", 5))
sketch8.addConstraint(Sketcher.Constraint("Vertical", 6))
sketch8.addConstraint(Sketcher.Constraint("Horizontal", 7))
sketch8.addConstraint(Sketcher.Constraint("Vertical", 8))
sketch8.addConstraint(Sketcher.Constraint("Horizontal", 9))
sketch8.addConstraint(Sketcher.Constraint("Vertical", 10))
sketch8.addConstraint(Sketcher.Constraint("Horizontal", 11))
sketch8.addConstraint(Sketcher.Constraint("Horizontal", 3, 2, 8, 2))
sketch8.addConstraint(Sketcher.Constraint("Horizontal", 1, 2, 10, 2))
sketch8.addConstraint(Sketcher.Constraint("Vertical", 0, 2, 3, 2))
sketch8.addConstraint(Sketcher.Constraint("Equal", 11, 0))
sketch8.addConstraint(Sketcher.Constraint("Equal", 0, 4))
sketch8.addConstraint(Sketcher.Constraint("DistanceX", 9, 1, 9, 2, 1.5))
sketch8.addConstraint(Sketcher.Constraint("DistanceY", 2, 1, 2, 2, 21.18))
sketch8.addConstraint(Sketcher.Constraint("DistanceX", 1, 2, -1, 1, 1.7))
sketch8.addConstraint(Sketcher.Constraint("DistanceX", 5, 2, -1, 1, 0.2))
sketch8.addConstraint(Sketcher.Constraint("DistanceX", 1, 2, 1, 1, 22.199))
sketch8.addConstraint(Sketcher.Constraint("DistanceY", 0, 2, -1, 1, 1.954))
sketch8.addConstraint(Sketcher.Constraint("DistanceX", -1, 1, 8, 2, 119.786))
pocket4 = body.newObject("PartDesign::Pocket", "Pocket003")
pocket4.Profile = sketch8
pocket4.Length = 3
pocket4.Reversed = True
doc.recompute()

chamfer = body.newObject("PartDesign::Chamfer", "Chamfer")
chamfer.Base = (pocket4, edges_at(pocket4, [(119.786, 18.476, 1.7), (119.786, -1.204, 1.7)]))
chamfer.Size = 2

# Sketch on XY plane
sketch9 = body.newObject("Sketcher::SketchObject", "Sketch008")
sketch9.AttachmentSupport = (doc.getObject("XY_Plane"), [""])
sketch9.MapMode = "FlatFace"
sketch9.AttachmentOffset = App.Placement(App.Vector(0, 0, 4.1), App.Rotation())
sketch9.addGeometry(Part.LineSegment(App.Vector(84.466, -0.454, 0), App.Vector(84.466, 17.726, 0)), False)
sketch9.addGeometry(Part.LineSegment(App.Vector(84.466, 17.726, 0), App.Vector(86.466, 17.726, 0)), False)
sketch9.addGeometry(Part.LineSegment(App.Vector(86.466, 17.726, 0), App.Vector(86.466, -0.454, 0)), False)
sketch9.addGeometry(Part.LineSegment(App.Vector(86.466, -0.454, 0), App.Vector(84.466, -0.454, 0)), False)
sketch9.addConstraint(Sketcher.Constraint("Coincident", 0, 2, 1, 1))
sketch9.addConstraint(Sketcher.Constraint("Coincident", 1, 2, 2, 1))
sketch9.addConstraint(Sketcher.Constraint("Coincident", 2, 2, 3, 1))
sketch9.addConstraint(Sketcher.Constraint("Coincident", 3, 2, 0, 1))
sketch9.addConstraint(Sketcher.Constraint("Vertical", 0))
sketch9.addConstraint(Sketcher.Constraint("Horizontal", 1))
sketch9.addConstraint(Sketcher.Constraint("Vertical", 2))
sketch9.addConstraint(Sketcher.Constraint("Horizontal", 3))
sketch9.addConstraint(Sketcher.Constraint("DistanceX", 1, 1, 1, 2, 2.0))
sketch9.addConstraint(Sketcher.Constraint("DistanceY", 0, 1, 0, 2, 18.18))
sketch9.addConstraint(Sketcher.Constraint("DistanceX", -1, 1, 0, 2, 84.466))
sketch9.addConstraint(Sketcher.Constraint("DistanceY", -1, 1, 0, 2, 17.726))
pad5 = body.newObject("PartDesign::Pad", "Pad004")
pad5.Profile = sketch9
pad5.Length = 3.5
pad5.Reversed = True

doc.recompute()
